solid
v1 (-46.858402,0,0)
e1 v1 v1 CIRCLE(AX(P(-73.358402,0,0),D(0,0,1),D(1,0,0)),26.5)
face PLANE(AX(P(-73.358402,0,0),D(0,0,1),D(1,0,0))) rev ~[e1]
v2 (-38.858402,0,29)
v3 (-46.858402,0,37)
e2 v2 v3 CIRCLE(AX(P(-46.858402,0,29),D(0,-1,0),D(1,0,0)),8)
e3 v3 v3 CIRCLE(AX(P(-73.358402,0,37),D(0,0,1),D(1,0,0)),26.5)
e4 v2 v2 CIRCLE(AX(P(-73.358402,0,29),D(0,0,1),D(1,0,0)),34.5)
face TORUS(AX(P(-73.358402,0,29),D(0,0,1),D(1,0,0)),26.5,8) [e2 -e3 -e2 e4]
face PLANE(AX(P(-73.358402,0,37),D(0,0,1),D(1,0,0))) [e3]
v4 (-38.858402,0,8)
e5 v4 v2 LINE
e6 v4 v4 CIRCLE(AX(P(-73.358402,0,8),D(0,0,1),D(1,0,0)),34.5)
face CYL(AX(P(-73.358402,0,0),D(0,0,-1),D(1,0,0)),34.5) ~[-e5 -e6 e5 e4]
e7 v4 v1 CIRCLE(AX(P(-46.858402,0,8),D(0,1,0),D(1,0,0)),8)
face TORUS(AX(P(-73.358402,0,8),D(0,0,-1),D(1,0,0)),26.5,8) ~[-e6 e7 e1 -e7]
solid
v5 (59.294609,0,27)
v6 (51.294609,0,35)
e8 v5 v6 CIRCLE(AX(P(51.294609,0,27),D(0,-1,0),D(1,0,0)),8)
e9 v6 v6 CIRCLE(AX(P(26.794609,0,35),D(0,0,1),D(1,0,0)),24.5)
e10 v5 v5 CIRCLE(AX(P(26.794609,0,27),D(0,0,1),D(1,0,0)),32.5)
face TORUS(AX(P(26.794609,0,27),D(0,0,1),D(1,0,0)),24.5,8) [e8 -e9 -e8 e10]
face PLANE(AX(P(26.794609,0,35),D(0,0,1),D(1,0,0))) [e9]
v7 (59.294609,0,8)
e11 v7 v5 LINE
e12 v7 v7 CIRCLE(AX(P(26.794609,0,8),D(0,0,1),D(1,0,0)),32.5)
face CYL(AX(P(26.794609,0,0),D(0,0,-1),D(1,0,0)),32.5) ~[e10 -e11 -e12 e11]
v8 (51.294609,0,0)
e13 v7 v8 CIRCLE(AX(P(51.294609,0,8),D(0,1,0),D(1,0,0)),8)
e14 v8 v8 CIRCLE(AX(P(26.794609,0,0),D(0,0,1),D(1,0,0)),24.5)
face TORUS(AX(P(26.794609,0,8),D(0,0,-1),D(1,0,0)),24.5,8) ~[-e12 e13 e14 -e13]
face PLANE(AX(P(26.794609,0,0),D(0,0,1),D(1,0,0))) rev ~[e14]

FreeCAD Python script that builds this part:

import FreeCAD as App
import Part
import Sketcher


def edges_at(feature, points):
    """Names of the edges that pass closest to the given points."""
    edges = feature.Shape.Edges
    near = lambda p: min(range(len(edges)), key=lambda i: edges[i].distToShape(Part.Vertex(*p))[0])
    return sorted({f"Edge{near(p) + 1}" for p in points})

doc = App.newDocument("Part")
params = doc.addObject("Spreadsheet::Sheet", "Params")
for row, (alias, value) in enumerate([
    ("sketch1_diameter", "69 mm"),
    ("pad1_length", "37 mm"),
    ("fillet_radius", "8 mm"),
    ("sketch2_diameter", "65 mm"),
    ("pad2_length", "35 mm"),
    ("fillet2_radius", "8 mm"),
], start=1):
    params.set(f"A{row}", alias)
    params.set(f"B{row}", "=" + value)
    params.setAlias(f"B{row}", alias)

body = doc.addObject("PartDesign::Body", "Body")

# Sketch on XY plane
sketch1 = doc.addObject("Sketcher::SketchObject", "Sketch")
body.addObject(sketch1)
sketch1.AttachmentSupport = (doc.XY_Plane, [""])
sketch1.MapMode = "FlatFace"
sketch1.addGeometry(Part.Circle(App.Vector(-73, 0, 0), App.Vector(0, 0, 1), 34), False)
sketch1.addConstraint(Sketcher.Constraint("PointOnObject", 0, 3, -1))
sketch1.addConstraint(Sketcher.Constraint("Diameter", 0, 69.0))
sketch1.addConstraint(Sketcher.Constraint("DistanceX", 0, 3, -1, 1, 73.358402))
sketch1.setExpression("Constraints[1]", "Params.sketch1_diameter")
pad1 = doc.addObject("PartDesign::Pad", "Pad")
body.addObject(pad1)
pad1.Profile = sketch1
pad1.setExpression("Length", "Params.pad1_length")
doc.recompute()

fillet = doc.addObject("PartDesign::Fillet", "Fillet")
body.addObject(fillet)
fillet.Base = (pad1, edges_at(pad1, [(-107.858, 0, 37), (-107.858, 0, 0)]))
fillet.setExpression("Radius", "Params.fillet_radius")
body2 = doc.addObject("PartDesign::Body", "Body001")

# Sketch on XY plane
sketch2 = doc.addObject("Sketcher::SketchObject", "Sketch001")
body2.addObject(sketch2)
sketch2.AttachmentSupport = (doc.getObject("XY_Plane001"), [""])
sketch2.MapMode = "FlatFace"
sketch2.addGeometry(Part.Circle(App.Vector(27, 0, 0), App.Vector(0, 0, 1), 32), False)
sketch2.addConstraint(Sketcher.Constraint("PointOnObject", 0, 3, -1))
sketch2.addConstraint(Sketcher.Constraint("Diameter", 0, 65.0))
sketch2.addConstraint(Sketcher.Constraint("DistanceX", -1, 1, 0, 3, 26.794609))
sketch2.setExpression("Constraints[1]", "Params.sketch2_diameter")
pad2 = doc.addObject("PartDesign::Pad", "Pad001")
body2.addObject(pad2)
pad2.Profile = sketch2
pad2.setExpression("Length", "Params.pad2_length")
doc.recompute()

fillet2 = doc.addObject("PartDesign::Fillet", "Fillet001")
body2.addObject(fillet2)
fillet2.Base = (pad2, edges_at(pad2, [(-5.705, 0, 0), (-5.705, 0, 35)]))
fillet2.setExpression("Radius", "Params.fillet2_radius")

doc.recompute()
